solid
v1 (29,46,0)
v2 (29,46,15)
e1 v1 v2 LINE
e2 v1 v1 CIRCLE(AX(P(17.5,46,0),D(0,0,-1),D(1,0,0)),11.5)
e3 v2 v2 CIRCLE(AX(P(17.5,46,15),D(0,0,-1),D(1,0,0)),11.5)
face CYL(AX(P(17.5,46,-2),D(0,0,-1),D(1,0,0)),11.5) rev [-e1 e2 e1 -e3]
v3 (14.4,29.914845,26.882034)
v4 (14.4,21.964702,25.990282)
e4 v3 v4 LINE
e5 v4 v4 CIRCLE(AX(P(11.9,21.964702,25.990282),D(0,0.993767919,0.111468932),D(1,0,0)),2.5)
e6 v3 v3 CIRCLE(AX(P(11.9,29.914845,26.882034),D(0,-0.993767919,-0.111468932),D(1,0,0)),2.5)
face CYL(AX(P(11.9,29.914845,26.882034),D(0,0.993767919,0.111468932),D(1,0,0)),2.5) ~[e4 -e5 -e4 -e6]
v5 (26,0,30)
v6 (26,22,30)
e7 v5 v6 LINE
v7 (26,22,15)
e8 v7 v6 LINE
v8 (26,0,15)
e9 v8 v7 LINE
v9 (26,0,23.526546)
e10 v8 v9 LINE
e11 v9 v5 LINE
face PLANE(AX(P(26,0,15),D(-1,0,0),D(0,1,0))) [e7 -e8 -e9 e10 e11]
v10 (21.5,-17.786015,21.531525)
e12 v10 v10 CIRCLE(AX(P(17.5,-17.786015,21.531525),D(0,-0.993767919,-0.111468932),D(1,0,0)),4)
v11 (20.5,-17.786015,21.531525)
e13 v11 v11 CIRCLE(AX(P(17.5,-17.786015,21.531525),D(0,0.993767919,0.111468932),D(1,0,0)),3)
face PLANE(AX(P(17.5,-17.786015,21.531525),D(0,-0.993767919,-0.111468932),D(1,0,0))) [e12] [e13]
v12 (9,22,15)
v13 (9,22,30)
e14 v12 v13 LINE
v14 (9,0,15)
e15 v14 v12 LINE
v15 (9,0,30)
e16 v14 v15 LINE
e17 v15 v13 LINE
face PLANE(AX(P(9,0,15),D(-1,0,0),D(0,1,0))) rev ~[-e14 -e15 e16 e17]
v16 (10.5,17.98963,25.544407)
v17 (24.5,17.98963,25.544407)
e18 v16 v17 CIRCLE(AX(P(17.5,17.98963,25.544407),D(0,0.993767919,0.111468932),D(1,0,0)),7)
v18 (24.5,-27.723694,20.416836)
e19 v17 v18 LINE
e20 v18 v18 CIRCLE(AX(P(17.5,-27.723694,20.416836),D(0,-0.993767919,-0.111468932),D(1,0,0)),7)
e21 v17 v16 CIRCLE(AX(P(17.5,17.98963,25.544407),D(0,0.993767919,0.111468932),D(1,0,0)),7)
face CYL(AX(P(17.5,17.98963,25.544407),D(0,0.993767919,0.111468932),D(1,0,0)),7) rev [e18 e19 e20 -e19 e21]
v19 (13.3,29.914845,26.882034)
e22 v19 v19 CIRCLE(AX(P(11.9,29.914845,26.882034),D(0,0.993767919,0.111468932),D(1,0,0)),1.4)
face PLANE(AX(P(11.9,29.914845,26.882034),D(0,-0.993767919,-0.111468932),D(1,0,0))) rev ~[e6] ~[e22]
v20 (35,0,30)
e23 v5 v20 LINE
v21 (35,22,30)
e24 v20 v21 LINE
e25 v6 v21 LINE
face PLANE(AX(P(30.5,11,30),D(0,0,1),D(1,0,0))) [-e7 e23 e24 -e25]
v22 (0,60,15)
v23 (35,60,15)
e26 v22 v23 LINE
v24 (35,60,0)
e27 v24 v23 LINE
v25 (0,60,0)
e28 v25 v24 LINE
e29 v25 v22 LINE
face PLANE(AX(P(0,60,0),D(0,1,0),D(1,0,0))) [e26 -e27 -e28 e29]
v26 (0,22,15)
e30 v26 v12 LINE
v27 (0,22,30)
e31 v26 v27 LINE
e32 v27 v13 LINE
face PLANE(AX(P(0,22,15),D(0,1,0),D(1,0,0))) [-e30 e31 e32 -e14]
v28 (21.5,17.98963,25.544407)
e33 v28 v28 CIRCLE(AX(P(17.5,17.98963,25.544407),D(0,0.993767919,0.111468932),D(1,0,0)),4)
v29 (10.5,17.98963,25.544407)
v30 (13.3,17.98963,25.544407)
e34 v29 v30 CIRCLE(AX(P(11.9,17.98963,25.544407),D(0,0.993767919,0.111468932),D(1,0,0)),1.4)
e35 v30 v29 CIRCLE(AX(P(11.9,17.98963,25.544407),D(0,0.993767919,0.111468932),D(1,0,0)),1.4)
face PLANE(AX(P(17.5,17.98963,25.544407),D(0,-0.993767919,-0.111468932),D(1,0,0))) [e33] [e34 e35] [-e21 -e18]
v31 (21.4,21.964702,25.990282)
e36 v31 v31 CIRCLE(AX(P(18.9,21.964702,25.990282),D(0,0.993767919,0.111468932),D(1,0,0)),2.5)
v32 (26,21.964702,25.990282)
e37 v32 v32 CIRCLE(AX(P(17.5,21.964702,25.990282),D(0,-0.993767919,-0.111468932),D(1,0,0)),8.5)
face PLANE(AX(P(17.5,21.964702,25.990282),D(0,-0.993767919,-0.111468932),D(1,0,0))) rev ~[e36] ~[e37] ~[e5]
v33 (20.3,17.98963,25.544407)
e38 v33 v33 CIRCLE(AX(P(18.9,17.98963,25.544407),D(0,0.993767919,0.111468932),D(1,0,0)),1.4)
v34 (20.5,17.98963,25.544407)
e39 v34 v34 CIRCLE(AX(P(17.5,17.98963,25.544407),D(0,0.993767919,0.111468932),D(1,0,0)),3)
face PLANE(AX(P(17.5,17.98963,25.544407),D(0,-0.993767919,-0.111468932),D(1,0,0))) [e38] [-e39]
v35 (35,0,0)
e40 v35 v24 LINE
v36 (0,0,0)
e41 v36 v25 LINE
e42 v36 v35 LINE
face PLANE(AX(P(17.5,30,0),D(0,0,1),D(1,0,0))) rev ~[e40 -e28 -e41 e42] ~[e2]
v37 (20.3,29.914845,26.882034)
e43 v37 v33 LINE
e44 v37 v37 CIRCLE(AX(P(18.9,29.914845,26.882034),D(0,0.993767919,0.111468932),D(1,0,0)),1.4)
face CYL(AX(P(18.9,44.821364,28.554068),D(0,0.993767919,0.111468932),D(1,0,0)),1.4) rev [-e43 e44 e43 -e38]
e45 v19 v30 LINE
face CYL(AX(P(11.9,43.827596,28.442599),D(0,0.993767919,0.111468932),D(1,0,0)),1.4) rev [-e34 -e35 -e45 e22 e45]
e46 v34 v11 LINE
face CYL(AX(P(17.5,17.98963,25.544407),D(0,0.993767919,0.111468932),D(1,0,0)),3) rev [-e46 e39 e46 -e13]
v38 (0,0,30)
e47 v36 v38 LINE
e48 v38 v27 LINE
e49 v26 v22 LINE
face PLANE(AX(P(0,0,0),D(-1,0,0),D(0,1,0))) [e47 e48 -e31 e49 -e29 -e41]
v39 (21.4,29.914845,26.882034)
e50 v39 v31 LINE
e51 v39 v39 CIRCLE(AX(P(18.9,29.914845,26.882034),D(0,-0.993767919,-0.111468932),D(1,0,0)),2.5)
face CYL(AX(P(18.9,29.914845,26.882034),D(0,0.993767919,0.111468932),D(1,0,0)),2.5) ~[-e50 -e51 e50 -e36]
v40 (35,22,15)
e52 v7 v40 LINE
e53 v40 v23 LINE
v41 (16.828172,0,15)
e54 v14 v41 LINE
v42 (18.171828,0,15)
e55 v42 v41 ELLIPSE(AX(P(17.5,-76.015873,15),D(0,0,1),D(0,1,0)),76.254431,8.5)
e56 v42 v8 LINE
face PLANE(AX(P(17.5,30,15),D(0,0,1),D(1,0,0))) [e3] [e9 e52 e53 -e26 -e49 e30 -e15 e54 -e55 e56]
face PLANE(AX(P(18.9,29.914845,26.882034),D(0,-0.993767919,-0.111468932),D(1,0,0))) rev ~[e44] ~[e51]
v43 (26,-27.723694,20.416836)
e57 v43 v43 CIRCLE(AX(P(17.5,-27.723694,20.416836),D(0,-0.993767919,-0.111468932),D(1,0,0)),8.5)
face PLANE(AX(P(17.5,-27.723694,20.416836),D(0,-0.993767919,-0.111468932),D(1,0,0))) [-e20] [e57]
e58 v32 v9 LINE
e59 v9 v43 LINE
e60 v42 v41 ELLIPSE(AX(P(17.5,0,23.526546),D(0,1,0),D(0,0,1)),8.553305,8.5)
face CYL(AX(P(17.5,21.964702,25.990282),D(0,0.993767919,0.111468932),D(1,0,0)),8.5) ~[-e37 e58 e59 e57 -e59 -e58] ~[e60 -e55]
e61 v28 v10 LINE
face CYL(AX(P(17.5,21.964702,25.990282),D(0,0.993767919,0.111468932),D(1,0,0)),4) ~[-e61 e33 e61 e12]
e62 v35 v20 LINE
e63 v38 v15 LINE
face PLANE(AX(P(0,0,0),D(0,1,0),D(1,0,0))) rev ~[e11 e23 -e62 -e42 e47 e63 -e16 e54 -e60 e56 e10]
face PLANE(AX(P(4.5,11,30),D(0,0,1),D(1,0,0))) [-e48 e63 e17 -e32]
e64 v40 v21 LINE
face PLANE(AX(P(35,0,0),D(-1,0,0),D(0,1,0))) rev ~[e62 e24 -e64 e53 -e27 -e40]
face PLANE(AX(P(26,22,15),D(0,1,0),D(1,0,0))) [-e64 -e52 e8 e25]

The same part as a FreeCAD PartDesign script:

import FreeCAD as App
import Part
import Sketcher
from FreeCAD import Vector
Q = App.Units.Quantity

doc = App.newDocument("Part")
params = doc.addObject("Spreadsheet::Sheet", "Params")
for row, (alias, value) in enumerate([
    ("sketch1_diameter", "23 mm"),
    ("pad1_length", "20 mm"),
    ("sketch2_width", "35 mm"),
    ("sketch2_height", "60 mm"),
    ("pad2_length", "15 mm"),
    ("sketch3_width", "9 mm"),
    ("sketch3_height", "22 mm"),
    ("pad3_length", "15 mm"),
    ("sketch4_width", "9 mm"),
    ("sketch4_height", "22 mm"),
    ("pad4_length", "15 mm"),
    ("sketch5_diameter", "2.8 mm"),
    ("pad5_length", "50 mm"),
    ("sketch6_diameter", "5 mm"),
    ("pad6_length", "12 mm"),
    ("sketch7_diameter", "2.8 mm"),
    ("pad7_length", "50 mm"),
    ("sketch8_diameter", "5 mm"),
    ("pad8_length", "12 mm"),
    ("sketch9_diameter", "6 mm"),
    ("pad9_length", "60 mm"),
    ("sketch10_diameter", "8 mm"),
    ("pad10_length", "40 mm"),
    ("sketch11_diameter", "14 mm"),
    ("pad11_length", "46 mm"),
    ("sketch12_diameter", "17 mm"),
    ("pad12_length", "50 mm"),
], start=1):
    params.set(f"A{row}", alias)
    params.set(f"B{row}", "=" + value)
    params.setAlias(f"B{row}", alias)

body = doc.addObject("PartDesign::Body", "Body")

sketch1 = body.newObject("Sketcher::SketchObject", "Sketch")
sketch1.AttachmentSupport = (doc.getObject("XY_Plane"), [""])
sketch1.MapMode = "FlatFace"
sketch1.AttachmentOffset = App.Placement(Vector(0, 0, -2), App.Rotation())
sketch1.addGeometry(Part.Circle(Vector(17.5, 46, 0), Vector(0, 0, 1), 11.5), False)
sketch1.addConstraint([
    Sketcher.Constraint("Diameter", 0, Q("23 mm")),
    Sketcher.Constraint("DistanceY", -1, 1, 0, 3, Q("46 mm")),
    Sketcher.Constraint("DistanceX", -1, 1, 0, 3, Q("17.5 mm")),
])
sketch1.setExpression("Constraints[0]", "Params.sketch1_diameter")
pad1 = body.newObject("PartDesign::Pad", "Pad")
pad1.Profile = sketch1
pad1.setExpression("Length", "Params.pad1_length")
body2 = doc.addObject("PartDesign::Body", "Body001")

sketch2 = body2.newObject("Sketcher::SketchObject", "Sketch001")
sketch2.AttachmentSupport = (doc.getObject("XY_Plane001"), [""])
sketch2.MapMode = "FlatFace"
sketch2.addGeometry([
    Part.LineSegment(Vector(0, 60, 0), Vector(0, 0, 0)),
    Part.LineSegment(Vector(0, 0, 0), Vector(35, 0, 0)),
    Part.LineSegment(Vector(35, 0, 0), Vector(35, 60, 0)),
    Part.LineSegment(Vector(35, 60, 0), Vector(0, 60, 0)),
], False)
sketch2.addConstraint([
    Sketcher.Constraint("Coincident", 0, 2, 1, 1),
    Sketcher.Constraint("Coincident", 1, 2, 2, 1),
    Sketcher.Constraint("Coincident", 2, 2, 3, 1),
    Sketcher.Constraint("Coincident", 3, 2, 0, 1),
    Sketcher.Constraint("Vertical", 0),
    Sketcher.Constraint("Horizontal", 1),
    Sketcher.Constraint("Vertical", 2),
    Sketcher.Constraint("Horizontal", 3),
    Sketcher.Constraint("Coincident", 0, 2, -1, 1),
    Sketcher.Constraint("DistanceX", 1, 1, 1, 2, Q("35 mm")),
    Sketcher.Constraint("DistanceY", 0, 2, 0, 1, Q("60 mm")),
])
sketch2.setExpression("Constraints[9]", "Params.sketch2_width")
sketch2.setExpression("Constraints[10]", "Params.sketch2_height")
pad2 = body2.newObject("PartDesign::Pad", "Pad001")
pad2.Profile = sketch2
pad2.setExpression("Length", "Params.pad2_length")
doc.recompute()

boolean = body2.newObject("PartDesign::Boolean", "Boolean")
boolean.Type = "Cut"
boolean.addObjects([body])
body3 = doc.addObject("PartDesign::Body", "Body002")

sketch3 = body3.newObject("Sketcher::SketchObject", "Sketch002")
sketch3.AttachmentSupport = (doc.getObject("XY_Plane002"), [""])
sketch3.MapMode = "FlatFace"
sketch3.AttachmentOffset = App.Placement(Vector(0, 0, 15), App.Rotation())
sketch3.addGeometry([
    Part.LineSegment(Vector(26, 22, 0), Vector(26, 0, 0)),
    Part.LineSegment(Vector(26, 0, 0), Vector(35, 0, 0)),
    Part.LineSegment(Vector(35, 0, 0), Vector(35, 22, 0)),
    Part.LineSegment(Vector(35, 22, 0), Vector(26, 22, 0)),
], False)
sketch3.addConstraint([
    Sketcher.Constraint("Coincident", 0, 2, 1, 1),
    Sketcher.Constraint("Coincident", 1, 2, 2, 1),
    Sketcher.Constraint("Coincident", 2, 2, 3, 1),
    Sketcher.Constraint("Coincident", 3, 2, 0, 1),
    Sketcher.Constraint("Vertical", 0),
    Sketcher.Constraint("Horizontal", 1),
    Sketcher.Constraint("Vertical", 2),
    Sketcher.Constraint("Horizontal", 3),
    Sketcher.Constraint("PointOnObject", 0, 2, -1),
    Sketcher.Constraint("DistanceX", 1, 1, 1, 2, Q("9 mm")),
    Sketcher.Constraint("DistanceY", 0, 2, 0, 1, Q("22 mm")),
    Sketcher.Constraint("DistanceX", -1, 1, 0, 2, Q("26 mm")),
])
sketch3.setExpression("Constraints[9]", "Params.sketch3_width")
sketch3.setExpression("Constraints[10]", "Params.sketch3_height")
pad3 = body3.newObject("PartDesign::Pad", "Pad002")
pad3.Profile = sketch3
pad3.setExpression("Length", "Params.pad3_length")
body4 = doc.addObject("PartDesign::Body", "Body003")

sketch4 = body4.newObject("Sketcher::SketchObject", "Sketch003")
sketch4.AttachmentSupport = (doc.getObject("XY_Plane003"), [""])
sketch4.MapMode = "FlatFace"
sketch4.AttachmentOffset = App.Placement(Vector(0, 0, 15), App.Rotation())
sketch4.addGeometry([
    Part.LineSegment(Vector(0, 22, 0), Vector(0, 0, 0)),
    Part.LineSegment(Vector(0, 0, 0), Vector(9, 0, 0)),
    Part.LineSegment(Vector(9, 0, 0), Vector(9, 22, 0)),
    Part.LineSegment(Vector(9, 22, 0), Vector(0, 22, 0)),
], False)
sketch4.addConstraint([
    Sketcher.Constraint("Coincident", 0, 2, 1, 1),
    Sketcher.Constraint("Coincident", 1, 2, 2, 1),
    Sketcher.Constraint("Coincident", 2, 2, 3, 1),
    Sketcher.Constraint("Coincident", 3, 2, 0, 1),
    Sketcher.Constraint("Vertical", 0),
    Sketcher.Constraint("Horizontal", 1),
    Sketcher.Constraint("Vertical", 2),
    Sketcher.Constraint("Horizontal", 3),
    Sketcher.Constraint("Coincident", 0, 2, -1, 1),
    Sketcher.Constraint("DistanceX", 1, 1, 1, 2, Q("9 mm")),
    Sketcher.Constraint("DistanceY", 0, 2, 0, 1, Q("22 mm")),
])
sketch4.setExpression("Constraints[9]", "Params.sketch4_width")
sketch4.setExpression("Constraints[10]", "Params.sketch4_height")
pad4 = body4.newObject("PartDesign::Pad", "Pad003")
pad4.Profile = sketch4
pad4.setExpression("Length", "Params.pad4_length")
body5 = doc.addObject("PartDesign::Body", "Body004")

sketch5 = body5.newObject("Sketcher::SketchObject", "Sketch004")
sketch5.AttachmentSupport = (doc.getObject("XZ_Plane004"), [""])
sketch5.MapMode = "FlatFace"
sketch5.AttachmentOffset = App.Placement(Vector(0, 0, -44), App.Rotation())
sketch5.addGeometry(Part.Circle(Vector(11.9, 26, 0), Vector(0, 0, 1), 1.4), False)
sketch5.addConstraint([
    Sketcher.Constraint("Diameter", 0, Q("2.8 mm")),
    Sketcher.Constraint("DistanceY", -1, 1, 0, 3, Q("26 mm")),
    Sketcher.Constraint("DistanceX", -1, 1, 0, 3, Q("11.9 mm")),
])
sketch5.setExpression("Constraints[0]", "Params.sketch5_diameter")
pad5 = body5.newObject("PartDesign::Pad", "Pad004")
pad5.Profile = sketch5
pad5.setExpression("Length", "Params.pad5_length")
body6 = doc.addObject("PartDesign::Body", "Body005")

sketch6 = body6.newObject("Sketcher::SketchObject", "Sketch005")
sketch6.AttachmentSupport = (doc.getObject("XZ_Plane005"), [""])
sketch6.MapMode = "FlatFace"
sketch6.AttachmentOffset = App.Placement(Vector(0, 0, -30), App.Rotation())
sketch6.addGeometry(Part.Circle(Vector(11.9, 26, 0), Vector(0, 0, 1), 2.5), False)
sketch6.addConstraint([
    Sketcher.Constraint("Diameter", 0, Q("5 mm")),
    Sketcher.Constraint("DistanceY", -1, 1, 0, 3, Q("26 mm")),
    Sketcher.Constraint("DistanceX", -1, 1, 0, 3, Q("11.9 mm")),
])
sketch6.setExpression("Constraints[0]", "Params.sketch6_diameter")
pad6 = body6.newObject("PartDesign::Pad", "Pad005")
pad6.Profile = sketch6
pad6.setExpression("Length", "Params.pad6_length")
body7 = doc.addObject("PartDesign::Body", "Body006")

sketch7 = body7.newObject("Sketcher::SketchObject", "Sketch006")
sketch7.AttachmentSupport = (doc.getObject("XZ_Plane006"), [""])
sketch7.MapMode = "FlatFace"
sketch7.AttachmentOffset = App.Placement(Vector(0, 0, -45), App.Rotation())
sketch7.addGeometry(Part.Circle(Vector(18.9, 26, 0), Vector(0, 0, 1), 1.4), False)
sketch7.addConstraint([
    Sketcher.Constraint("Diameter", 0, Q("2.8 mm")),
    Sketcher.Constraint("DistanceY", -1, 1, 0, 3, Q("26 mm")),
    Sketcher.Constraint("DistanceX", -1, 1, 0, 3, Q("18.9 mm")),
])
sketch7.setExpression("Constraints[0]", "Params.sketch7_diameter")
pad7 = body7.newObject("PartDesign::Pad", "Pad006")
pad7.Profile = sketch7
pad7.setExpression("Length", "Params.pad7_length")
body8 = doc.addObject("PartDesign::Body", "Body007")

sketch8 = body8.newObject("Sketcher::SketchObject", "Sketch007")
sketch8.AttachmentSupport = (doc.getObject("XZ_Plane007"), [""])
sketch8.MapMode = "FlatFace"
sketch8.AttachmentOffset = App.Placement(Vector(0, 0, -30), App.Rotation())
sketch8.addGeometry(Part.Circle(Vector(18.9, 26, 0), Vector(0, 0, 1), 2.5), False)
sketch8.addConstraint([
    Sketcher.Constraint("Diameter", 0, Q("5 mm")),
    Sketcher.Constraint("DistanceY", -1, 1, 0, 3, Q("26 mm")),
    Sketcher.Constraint("DistanceX", -1, 1, 0, 3, Q("18.9 mm")),
])
sketch8.setExpression("Constraints[0]", "Params.sketch8_diameter")
pad8 = body8.newObject("PartDesign::Pad", "Pad007")
pad8.Profile = sketch8
pad8.setExpression("Length", "Params.pad8_length")
body9 = doc.addObject("PartDesign::Body", "Body008")

sketch9 = body9.newObject("Sketcher::SketchObject", "Sketch008")
sketch9.AttachmentSupport = (doc.getObject("XZ_Plane008"), [""])
sketch9.MapMode = "FlatFace"
sketch9.AttachmentOffset = App.Placement(Vector(0, 0, -18), App.Rotation())
sketch9.addGeometry(Part.Circle(Vector(17.5, 26, 0), Vector(0, 0, 1), 3), False)
sketch9.addConstraint([
    Sketcher.Constraint("Diameter", 0, Q("6 mm")),
    Sketcher.Constraint("DistanceY", -1, 1, 0, 3, Q("26 mm")),
    Sketcher.Constraint("DistanceX", -1, 1, 0, 3, Q("17.5 mm")),
])
sketch9.setExpression("Constraints[0]", "Params.sketch9_diameter")
pad9 = body9.newObject("PartDesign::Pad", "Pad008")
pad9.Profile = sketch9
pad9.setExpression("Length", "Params.pad9_length")
body10 = doc.addObject("PartDesign::Body", "Body009")

sketch10 = body10.newObject("Sketcher::SketchObject", "Sketch009")
sketch10.AttachmentSupport = (doc.getObject("XZ_Plane009"), [""])
sketch10.MapMode = "FlatFace"
sketch10.AttachmentOffset = App.Placement(Vector(0, 0, -22), App.Rotation())
sketch10.addGeometry(Part.Circle(Vector(17.5, 26, 0), Vector(0, 0, 1), 4), False)
sketch10.addConstraint([
    Sketcher.Constraint("Diameter", 0, Q("8 mm")),
    Sketcher.Constraint("DistanceY", -1, 1, 0, 3, Q("26 mm")),
    Sketcher.Constraint("DistanceX", -1, 1, 0, 3, Q("17.5 mm")),
])
sketch10.setExpression("Constraints[0]", "Params.sketch10_diameter")
pad10 = body10.newObject("PartDesign::Pad", "Pad009")
pad10.Profile = sketch10
pad10.setExpression("Length", "Params.pad10_length")
doc.recompute()

boolean2 = body10.newObject("PartDesign::Boolean", "Boolean001")
boolean2.Type = "Cut"
boolean2.addObjects([body9])
body11 = doc.addObject("PartDesign::Body", "Body010")

sketch11 = body11.newObject("Sketcher::SketchObject", "Sketch010")
sketch11.AttachmentSupport = (doc.getObject("XZ_Plane010"), [""])
sketch11.MapMode = "FlatFace"
sketch11.AttachmentOffset = App.Placement(Vector(0, 0, -18), App.Rotation())
sketch11.addGeometry(Part.Circle(Vector(17.5, 26, 0), Vector(0, 0, 1), 7), False)
sketch11.addConstraint([
    Sketcher.Constraint("Diameter", 0, Q("14 mm")),
    Sketcher.Constraint("DistanceY", -1, 1, 0, 3, Q("26 mm")),
    Sketcher.Constraint("DistanceX", -1, 1, 0, 3, Q("17.5 mm")),
])
sketch11.setExpression("Constraints[0]", "Params.sketch11_diameter")
pad11 = body11.newObject("PartDesign::Pad", "Pad010")
pad11.Profile = sketch11
pad11.setExpression("Length", "Params.pad11_length")
body12 = doc.addObject("PartDesign::Body", "Body011")

sketch12 = body12.newObject("Sketcher::SketchObject", "Sketch011")
sketch12.AttachmentSupport = (doc.getObject("XZ_Plane011"), [""])
sketch12.MapMode = "FlatFace"
sketch12.AttachmentOffset = App.Placement(Vector(0, 0, -22), App.Rotation())
sketch12.addGeometry(Part.Circle(Vector(17.5, 26, 0), Vector(0, 0, 1), 8.5), False)
sketch12.addConstraint([
    Sketcher.Constraint("Diameter", 0, Q("17 mm")),
    Sketcher.Constraint("DistanceY", -1, 1, 0, 3, Q("26 mm")),
    Sketcher.Constraint("DistanceX", -1, 1, 0, 3, Q("17.5 mm")),
])
sketch12.setExpression("Constraints[0]", "Params.sketch12_diameter")
pad12 = body12.newObject("PartDesign::Pad", "Pad011")
pad12.Profile = sketch12
pad12.setExpression("Length", "Params.pad12_length")
doc.recompute()

boolean3 = body12.newObject("PartDesign::Boolean", "Boolean002")
boolean3.Type = "Cut"
boolean3.addObjects([body11])
doc.recompute()

boolean4 = body12.newObject("PartDesign::Boolean", "Boolean003")
boolean4.Type = "Fuse"
boolean4.addObjects([body10])
doc.recompute()

boolean5 = body12.newObject("PartDesign::Boolean", "Boolean004")
boolean5.Type = "Fuse"
boolean5.addObjects([body8])
doc.recompute()

boolean6 = body12.newObject("PartDesign::Boolean", "Boolean005")
boolean6.Type = "Cut"
boolean6.addObjects([body7])
doc.recompute()

boolean7 = body12.newObject("PartDesign::Boolean", "Boolean006")
boolean7.Type = "Fuse"
boolean7.addObjects([body6])
doc.recompute()

boolean8 = body12.newObject("PartDesign::Boolean", "Boolean007")
boolean8.Type = "Cut"
boolean8.addObjects([body5])
body13 = doc.addObject("PartDesign::Body", "Body012")
body13.AllowCompound = True
doc.recompute()

body12.Placement = App.Placement(Vector(0, 3, -2.3), App.Rotation(Vector(1, 0, 0), 6.4))
boolean9 = body13.newObject("PartDesign::Boolean", "Boolean008")
boolean9.Type = "Fuse"
boolean9.addObjects([body12])
doc.recompute()

boolean10 = body13.newObject("PartDesign::Boolean", "Boolean009")
boolean10.Type = "Fuse"
boolean10.addObjects([body3])
doc.recompute()

boolean11 = body13.newObject("PartDesign::Boolean", "Boolean010")
boolean11.Type = "Fuse"
boolean11.addObjects([body4])
doc.recompute()

boolean12 = body13.newObject("PartDesign::Boolean", "Boolean011")
boolean12.Type = "Fuse"
boolean12.addObjects([body2])

doc.recompute()
